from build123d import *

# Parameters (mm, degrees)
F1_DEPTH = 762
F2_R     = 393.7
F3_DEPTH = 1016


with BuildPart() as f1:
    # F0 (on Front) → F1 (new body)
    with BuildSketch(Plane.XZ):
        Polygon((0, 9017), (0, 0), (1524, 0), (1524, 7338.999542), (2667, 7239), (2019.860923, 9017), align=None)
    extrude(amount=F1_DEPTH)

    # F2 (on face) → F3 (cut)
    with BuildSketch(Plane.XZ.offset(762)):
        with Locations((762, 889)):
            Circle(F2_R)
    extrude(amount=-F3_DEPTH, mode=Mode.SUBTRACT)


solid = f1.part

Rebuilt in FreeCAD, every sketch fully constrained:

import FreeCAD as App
import Part
import Sketcher
Q = App.Units.Quantity


def add_polygon(sketch, points):
    """Adds a closed chain of lines whose ends are joined by coincident constraints."""
    first, n = sketch.GeometryCount, len(points)
    for a, b in zip(points, points[1:] + points[:1]):
        sketch.addGeometry(Part.LineSegment(App.Vector(*a, 0), App.Vector(*b, 0)), False)
    for i in range(n):
        sketch.addConstraint(Sketcher.Constraint("Coincident", first + i, 2, first + (i + 1) % n, 1))

doc = App.newDocument("Part")
params = doc.addObject("Spreadsheet::Sheet", "Params")
for row, (alias, value) in enumerate([
    ("sketch1_width", "60 in"),
    ("sketch1_height", "355 in"),
    ("pad1_length", "30 in"),
    ("sketch2_diameter", "31 in"),
    ("pocket1_length", "40 in"),
], start=1):
    params.set(f"A{row}", alias)
    params.set(f"B{row}", "=" + value)
    params.setAlias(f"B{row}", alias)

body = doc.addObject("PartDesign::Body", "Body")

# Sketch on XZ plane
sketch1 = body.newObject("Sketcher::SketchObject", "Sketch")
sketch1.AttachmentSupport = (doc.getObject("XZ_Plane"), [""])
sketch1.MapMode = "FlatFace"
add_polygon(sketch1, [(0, 9017), (0, 0), (1524, 0), (1524, 7339), (2667, 7239), (2020, 9017)])  # lines 0-5
sketch1.addConstraint([
    Sketcher.Constraint("Vertical", 0),
    Sketcher.Constraint("Horizontal", 1),
    Sketcher.Constraint("Vertical", 2),
    Sketcher.Constraint("Horizontal", 5),
    Sketcher.Constraint("Coincident", 0, 2, -1, 1),
    Sketcher.Constraint("DistanceX", 1, 1, 1, 2, Q("60 in")),
    Sketcher.Constraint("DistanceY", 0, 2, 0, 1, Q("355 in")),
    Sketcher.Constraint("DistanceX", -1, 1, 3, 2, Q("105 in")),
    Sketcher.Constraint("DistanceY", -1, 1, 3, 2, Q("285 in")),
    Sketcher.Constraint("Angle", 3, Q("-5 deg")),
    Sketcher.Constraint("Angle", 4, Q("110 deg")),
])
sketch1.setExpression("Constraints[11]", "Params.sketch1_width")
sketch1.setExpression("Constraints[12]", "Params.sketch1_height")
pad1 = body.newObject("PartDesign::Pad", "Pad")
pad1.Profile = sketch1
pad1.setExpression("Length", "Params.pad1_length")

# Sketch on XZ plane
sketch2 = body.newObject("Sketcher::SketchObject", "Sketch001")
sketch2.AttachmentSupport = (doc.getObject("XZ_Plane"), [""])
sketch2.MapMode = "FlatFace"
sketch2.AttachmentOffset = App.Placement(App.Vector(0, 0, 30 * 25.4), App.Rotation())
sketch2.addGeometry(Part.Circle(App.Vector(762, 889, 0), App.Vector(0, 0, 1), 394), False)
sketch2.addConstraint([
    Sketcher.Constraint("Diameter", 0, Q("31 in")),
    Sketcher.Constraint("DistanceX", -1, 1, 0, 3, Q("30 in")),
    Sketcher.Constraint("DistanceY", -1, 1, 0, 3, Q("35 in")),
])
sketch2.setExpression("Constraints[0]", "Params.sketch2_diameter")
pocket1 = body.newObject("PartDesign::Pocket", "Pocket")
pocket1.Profile = sketch2
pocket1.setExpression("Length", "Params.pocket1_length")

doc.recompute()
